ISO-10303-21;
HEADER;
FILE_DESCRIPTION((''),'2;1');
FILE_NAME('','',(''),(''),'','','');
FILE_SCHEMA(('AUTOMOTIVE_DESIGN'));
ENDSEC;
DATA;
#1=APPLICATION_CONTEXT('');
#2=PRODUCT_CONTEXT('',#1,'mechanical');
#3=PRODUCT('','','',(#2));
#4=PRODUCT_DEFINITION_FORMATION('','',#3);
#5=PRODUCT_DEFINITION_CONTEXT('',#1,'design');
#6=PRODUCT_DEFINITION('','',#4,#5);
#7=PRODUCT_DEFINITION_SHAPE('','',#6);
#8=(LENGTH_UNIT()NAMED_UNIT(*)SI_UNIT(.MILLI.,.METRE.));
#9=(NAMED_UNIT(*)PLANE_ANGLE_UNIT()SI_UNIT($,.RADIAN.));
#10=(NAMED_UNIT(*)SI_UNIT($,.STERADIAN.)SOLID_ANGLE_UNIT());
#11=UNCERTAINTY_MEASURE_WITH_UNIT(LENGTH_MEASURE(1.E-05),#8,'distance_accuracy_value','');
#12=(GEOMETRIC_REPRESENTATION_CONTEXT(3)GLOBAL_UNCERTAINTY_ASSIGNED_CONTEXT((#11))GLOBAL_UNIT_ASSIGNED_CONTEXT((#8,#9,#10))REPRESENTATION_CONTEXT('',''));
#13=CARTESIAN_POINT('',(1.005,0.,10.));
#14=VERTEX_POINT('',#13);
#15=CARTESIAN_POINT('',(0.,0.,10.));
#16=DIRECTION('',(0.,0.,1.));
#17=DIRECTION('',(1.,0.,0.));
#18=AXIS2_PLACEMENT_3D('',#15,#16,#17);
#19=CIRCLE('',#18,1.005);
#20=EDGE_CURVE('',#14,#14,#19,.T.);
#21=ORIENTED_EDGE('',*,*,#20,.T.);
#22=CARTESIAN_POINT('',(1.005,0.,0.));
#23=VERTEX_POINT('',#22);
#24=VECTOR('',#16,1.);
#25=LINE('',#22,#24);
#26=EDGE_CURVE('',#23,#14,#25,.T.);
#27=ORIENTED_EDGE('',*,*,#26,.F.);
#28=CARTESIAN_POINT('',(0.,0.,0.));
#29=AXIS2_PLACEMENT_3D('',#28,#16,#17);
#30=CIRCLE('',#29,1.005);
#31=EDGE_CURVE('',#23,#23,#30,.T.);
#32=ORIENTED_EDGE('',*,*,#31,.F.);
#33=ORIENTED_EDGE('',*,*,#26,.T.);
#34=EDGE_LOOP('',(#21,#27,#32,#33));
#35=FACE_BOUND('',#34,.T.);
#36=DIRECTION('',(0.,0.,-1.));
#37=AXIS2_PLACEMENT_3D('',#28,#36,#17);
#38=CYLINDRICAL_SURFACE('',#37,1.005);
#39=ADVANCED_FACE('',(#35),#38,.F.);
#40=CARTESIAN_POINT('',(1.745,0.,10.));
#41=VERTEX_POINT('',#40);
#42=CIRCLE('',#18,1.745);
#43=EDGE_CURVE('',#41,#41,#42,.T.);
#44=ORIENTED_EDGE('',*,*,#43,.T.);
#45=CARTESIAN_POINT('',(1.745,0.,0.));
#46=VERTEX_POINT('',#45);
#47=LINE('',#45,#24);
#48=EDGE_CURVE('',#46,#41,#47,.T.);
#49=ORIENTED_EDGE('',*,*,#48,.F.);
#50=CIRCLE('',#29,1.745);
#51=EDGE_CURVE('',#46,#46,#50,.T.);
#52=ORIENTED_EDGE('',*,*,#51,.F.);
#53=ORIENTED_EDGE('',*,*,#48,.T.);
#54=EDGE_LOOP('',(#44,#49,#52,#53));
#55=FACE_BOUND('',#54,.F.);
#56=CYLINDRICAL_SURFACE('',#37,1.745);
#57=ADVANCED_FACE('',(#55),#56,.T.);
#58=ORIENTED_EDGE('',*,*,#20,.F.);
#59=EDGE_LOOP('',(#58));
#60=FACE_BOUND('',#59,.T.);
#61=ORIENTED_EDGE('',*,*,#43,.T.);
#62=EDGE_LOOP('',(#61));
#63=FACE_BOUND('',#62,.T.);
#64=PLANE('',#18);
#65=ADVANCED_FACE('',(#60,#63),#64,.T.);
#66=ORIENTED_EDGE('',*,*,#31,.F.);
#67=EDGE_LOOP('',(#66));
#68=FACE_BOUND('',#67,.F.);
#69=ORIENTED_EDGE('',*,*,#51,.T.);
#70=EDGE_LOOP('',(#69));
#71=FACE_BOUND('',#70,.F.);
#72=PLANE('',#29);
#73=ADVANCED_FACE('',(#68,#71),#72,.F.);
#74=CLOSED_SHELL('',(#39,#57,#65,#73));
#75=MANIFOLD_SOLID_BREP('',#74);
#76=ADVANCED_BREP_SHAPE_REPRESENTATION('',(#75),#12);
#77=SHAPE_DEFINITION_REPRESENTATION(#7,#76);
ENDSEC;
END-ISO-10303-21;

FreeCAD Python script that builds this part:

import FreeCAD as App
import Part
import Sketcher

V = App.Vector
Q = App.Units.Quantity

doc = App.newDocument("Part")
body = doc.addObject("PartDesign::Body", "Body")

# Sketch on XY plane
sketch1 = body.newObject("Sketcher::SketchObject", "Sketch")
sketch1.AttachmentSupport = (doc.getObject("XY_Plane"), [""])
sketch1.MapMode = "FlatFace"
sketch1.addGeometry([
    Part.Circle(V(0, 0, 0), V(0, 0, 1), 1.745),
    Part.Circle(V(0, 0, 0), V(0, 0, 1), 1.005),
], False)
sketch1.addConstraint([
    Sketcher.Constraint("Coincident", 0, 3, -1, 1),
    Sketcher.Constraint("Coincident", 1, 3, -1, 1),
    Sketcher.Constraint("Diameter", 0, Q("3.49 mm")),
    Sketcher.Constraint("Diameter", 1, Q("2.01 mm")),
])
pad1 = body.newObject("PartDesign::Pad", "Pad")
pad1.Profile = sketch1
pad1.Length = 10

doc.recompute()
